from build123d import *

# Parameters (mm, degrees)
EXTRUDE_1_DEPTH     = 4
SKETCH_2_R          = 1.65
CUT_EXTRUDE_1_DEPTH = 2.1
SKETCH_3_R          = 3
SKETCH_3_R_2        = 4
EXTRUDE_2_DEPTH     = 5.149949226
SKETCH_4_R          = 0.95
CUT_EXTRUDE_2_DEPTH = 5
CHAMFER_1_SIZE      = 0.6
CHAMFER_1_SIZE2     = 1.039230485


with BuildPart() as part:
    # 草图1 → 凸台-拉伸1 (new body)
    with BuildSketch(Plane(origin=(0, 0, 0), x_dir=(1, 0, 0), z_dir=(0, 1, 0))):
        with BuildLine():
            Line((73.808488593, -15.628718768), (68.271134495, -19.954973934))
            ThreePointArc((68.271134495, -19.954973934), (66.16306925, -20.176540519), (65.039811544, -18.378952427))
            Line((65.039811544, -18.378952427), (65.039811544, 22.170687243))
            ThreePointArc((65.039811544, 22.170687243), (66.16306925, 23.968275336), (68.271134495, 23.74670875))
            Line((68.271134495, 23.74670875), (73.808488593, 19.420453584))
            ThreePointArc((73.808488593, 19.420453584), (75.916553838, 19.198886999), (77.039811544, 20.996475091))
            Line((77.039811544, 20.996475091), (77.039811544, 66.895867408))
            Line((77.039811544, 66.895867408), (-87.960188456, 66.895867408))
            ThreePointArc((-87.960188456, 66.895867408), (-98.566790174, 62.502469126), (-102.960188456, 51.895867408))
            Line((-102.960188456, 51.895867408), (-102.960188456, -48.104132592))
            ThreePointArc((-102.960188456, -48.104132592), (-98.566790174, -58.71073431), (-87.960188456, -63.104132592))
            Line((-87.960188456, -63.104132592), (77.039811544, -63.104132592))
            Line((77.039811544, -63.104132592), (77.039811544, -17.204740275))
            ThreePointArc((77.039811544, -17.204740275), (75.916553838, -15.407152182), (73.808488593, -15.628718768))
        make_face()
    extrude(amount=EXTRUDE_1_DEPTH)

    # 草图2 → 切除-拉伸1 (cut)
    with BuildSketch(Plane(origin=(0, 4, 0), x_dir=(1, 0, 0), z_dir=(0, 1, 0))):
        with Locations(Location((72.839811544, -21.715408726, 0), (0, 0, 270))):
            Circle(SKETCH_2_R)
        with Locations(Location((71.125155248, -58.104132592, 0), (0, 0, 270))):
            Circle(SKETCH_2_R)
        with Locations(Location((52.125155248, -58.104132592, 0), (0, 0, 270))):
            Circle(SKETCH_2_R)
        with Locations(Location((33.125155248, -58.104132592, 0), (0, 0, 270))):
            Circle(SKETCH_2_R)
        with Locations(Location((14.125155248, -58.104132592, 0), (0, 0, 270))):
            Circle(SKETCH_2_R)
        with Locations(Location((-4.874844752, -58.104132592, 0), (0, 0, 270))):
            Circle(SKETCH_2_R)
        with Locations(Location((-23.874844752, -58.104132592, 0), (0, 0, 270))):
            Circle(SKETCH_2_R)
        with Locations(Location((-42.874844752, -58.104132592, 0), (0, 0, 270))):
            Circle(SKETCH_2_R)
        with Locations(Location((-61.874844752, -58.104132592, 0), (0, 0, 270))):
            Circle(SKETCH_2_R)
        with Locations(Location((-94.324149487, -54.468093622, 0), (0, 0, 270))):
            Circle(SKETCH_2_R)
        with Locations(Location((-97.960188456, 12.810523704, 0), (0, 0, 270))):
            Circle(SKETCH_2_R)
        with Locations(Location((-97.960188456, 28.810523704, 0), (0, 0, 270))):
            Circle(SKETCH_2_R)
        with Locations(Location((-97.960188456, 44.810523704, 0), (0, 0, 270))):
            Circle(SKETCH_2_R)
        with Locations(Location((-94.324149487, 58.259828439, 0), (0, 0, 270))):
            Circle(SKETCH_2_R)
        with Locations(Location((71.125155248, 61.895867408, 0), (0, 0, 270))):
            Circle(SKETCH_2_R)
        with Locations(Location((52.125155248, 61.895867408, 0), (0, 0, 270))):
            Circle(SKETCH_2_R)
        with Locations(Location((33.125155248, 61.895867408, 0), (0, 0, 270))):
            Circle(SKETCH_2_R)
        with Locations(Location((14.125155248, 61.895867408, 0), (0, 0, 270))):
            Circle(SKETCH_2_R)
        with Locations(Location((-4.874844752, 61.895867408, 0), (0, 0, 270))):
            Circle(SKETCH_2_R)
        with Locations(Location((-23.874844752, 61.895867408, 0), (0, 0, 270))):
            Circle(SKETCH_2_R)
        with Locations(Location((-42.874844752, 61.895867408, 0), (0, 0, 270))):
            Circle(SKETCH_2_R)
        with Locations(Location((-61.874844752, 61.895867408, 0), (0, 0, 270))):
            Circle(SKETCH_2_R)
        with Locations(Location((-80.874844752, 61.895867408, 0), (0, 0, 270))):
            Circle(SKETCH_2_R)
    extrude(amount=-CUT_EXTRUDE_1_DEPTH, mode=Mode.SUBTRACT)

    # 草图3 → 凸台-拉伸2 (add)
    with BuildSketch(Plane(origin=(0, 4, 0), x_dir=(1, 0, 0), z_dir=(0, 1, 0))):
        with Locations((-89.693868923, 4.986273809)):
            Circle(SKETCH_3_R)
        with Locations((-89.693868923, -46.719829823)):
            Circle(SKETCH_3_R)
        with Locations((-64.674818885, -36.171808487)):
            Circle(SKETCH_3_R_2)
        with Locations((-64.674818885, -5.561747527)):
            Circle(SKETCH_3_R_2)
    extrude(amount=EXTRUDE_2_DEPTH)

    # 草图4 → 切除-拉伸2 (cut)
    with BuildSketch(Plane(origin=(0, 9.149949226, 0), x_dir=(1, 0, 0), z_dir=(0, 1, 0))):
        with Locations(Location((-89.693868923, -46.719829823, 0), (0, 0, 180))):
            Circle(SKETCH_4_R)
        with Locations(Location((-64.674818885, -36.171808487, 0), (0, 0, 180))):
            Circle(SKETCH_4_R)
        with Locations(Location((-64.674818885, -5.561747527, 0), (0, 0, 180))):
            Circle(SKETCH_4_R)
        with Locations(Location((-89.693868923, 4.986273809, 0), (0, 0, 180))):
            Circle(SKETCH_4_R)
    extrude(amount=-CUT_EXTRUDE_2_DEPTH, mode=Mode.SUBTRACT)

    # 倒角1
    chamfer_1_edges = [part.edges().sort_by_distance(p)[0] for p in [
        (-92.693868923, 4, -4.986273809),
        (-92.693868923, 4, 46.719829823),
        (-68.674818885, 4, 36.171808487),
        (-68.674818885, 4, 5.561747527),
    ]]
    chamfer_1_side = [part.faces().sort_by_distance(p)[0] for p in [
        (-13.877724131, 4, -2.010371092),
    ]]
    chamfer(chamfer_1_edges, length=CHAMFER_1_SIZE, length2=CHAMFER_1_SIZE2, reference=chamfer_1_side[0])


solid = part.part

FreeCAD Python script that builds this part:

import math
import FreeCAD as App
import Part
import Sketcher
Q = App.Units.Quantity


def edges_at(feature, points):
    """Names of the edges that pass closest to the given points."""
    edges = feature.Shape.Edges
    near = lambda p: min(range(len(edges)), key=lambda i: edges[i].distToShape(Part.Vertex(*p))[0])
    return sorted({f"Edge{near(p) + 1}" for p in points})

doc = App.newDocument("Part")
body = doc.addObject("PartDesign::Body", "Body")

# Sketch on XZ plane
sketch1 = body.newObject("Sketcher::SketchObject", "Sketch")
sketch1.AttachmentSupport = (doc.getObject("XZ_Plane"), [""])
sketch1.MapMode = "FlatFace"
sketch1.addGeometry(Part.LineSegment(App.Vector(73.8, 15.6, 0), App.Vector(68.3, 20, 0)), False)
sketch1.addGeometry(Part.ArcOfCircle(Part.Circle(App.Vector(67, 18.4, 0), App.Vector(0, 0, 1), 2), math.radians(52), math.radians(180)), False)
sketch1.addGeometry(Part.LineSegment(App.Vector(65, 18.4, 0), App.Vector(65, -22.2, 0)), False)
sketch1.addGeometry(Part.ArcOfCircle(Part.Circle(App.Vector(67, -22.2, 0), App.Vector(0, 0, 1), 2), math.radians(180), math.radians(308)), False)
sketch1.addGeometry(Part.LineSegment(App.Vector(68.3, -23.7, 0), App.Vector(73.8, -19.4, 0)), False)
sketch1.addGeometry(Part.ArcOfCircle(Part.Circle(App.Vector(75, -21, 0), App.Vector(0, 0, 1), 2), math.radians(0), math.radians(128)), False)
sketch1.addGeometry(Part.LineSegment(App.Vector(77, -21, 0), App.Vector(77, -66.9, 0)), False)
sketch1.addGeometry(Part.LineSegment(App.Vector(77, -66.9, 0), App.Vector(-88, -66.9, 0)), False)
sketch1.addGeometry(Part.ArcOfCircle(Part.Circle(App.Vector(-88, -51.9, 0), App.Vector(0, 0, 1), 15), math.radians(180), math.radians(270)), False)
sketch1.addGeometry(Part.LineSegment(App.Vector(-103, -51.9, 0), App.Vector(-103, 48.1, 0)), False)
sketch1.addGeometry(Part.ArcOfCircle(Part.Circle(App.Vector(-88, 48.1, 0), App.Vector(0, 0, 1), 15), math.radians(90), math.radians(180)), False)
sketch1.addGeometry(Part.LineSegment(App.Vector(-88, 63.1, 0), App.Vector(77, 63.1, 0)), False)
sketch1.addGeometry(Part.LineSegment(App.Vector(77, 63.1, 0), App.Vector(77, 17.2, 0)), False)
sketch1.addGeometry(Part.ArcOfCircle(Part.Circle(App.Vector(75, 17.2, 0), App.Vector(0, 0, 1), 2), math.radians(-128), math.radians(0)), False)
sketch1.addConstraint(Sketcher.Constraint("Tangent", 0, 2, 1, 1))
sketch1.addConstraint(Sketcher.Constraint("Tangent", 1, 2, 2, 1))
sketch1.addConstraint(Sketcher.Constraint("Tangent", 2, 2, 3, 1))
sketch1.addConstraint(Sketcher.Constraint("Tangent", 3, 2, 4, 1))
sketch1.addConstraint(Sketcher.Constraint("Tangent", 4, 2, 5, 2))
sketch1.addConstraint(Sketcher.Constraint("Tangent", 5, 1, 6, 1))
sketch1.addConstraint(Sketcher.Constraint("Coincident", 6, 2, 7, 1))
sketch1.addConstraint(Sketcher.Constraint("Tangent", 7, 2, 8, 2))
sketch1.addConstraint(Sketcher.Constraint("Tangent", 8, 1, 9, 1))
sketch1.addConstraint(Sketcher.Constraint("Tangent", 9, 2, 10, 2))
sketch1.addConstraint(Sketcher.Constraint("Tangent", 10, 1, 11, 1))
sketch1.addConstraint(Sketcher.Constraint("Coincident", 11, 2, 12, 1))
sketch1.addConstraint(Sketcher.Constraint("Tangent", 12, 2, 13, 2))
sketch1.addConstraint(Sketcher.Constraint("Tangent", 13, 1, 0, 1))
sketch1.addConstraint(Sketcher.Constraint("Vertical", 2))
sketch1.addConstraint(Sketcher.Constraint("Vertical", 6))
sketch1.addConstraint(Sketcher.Constraint("Horizontal", 7))
sketch1.addConstraint(Sketcher.Constraint("Vertical", 9))
sketch1.addConstraint(Sketcher.Constraint("Horizontal", 11))
sketch1.addConstraint(Sketcher.Constraint("Vertical", 12))
sketch1.addConstraint(Sketcher.Constraint("Equal", 1, 3))
sketch1.addConstraint(Sketcher.Constraint("Equal", 3, 5))
sketch1.addConstraint(Sketcher.Constraint("Equal", 8, 10))
sketch1.addConstraint(Sketcher.Constraint("Equal", 5, 13))
sketch1.addConstraint(Sketcher.Constraint("Vertical", 5, 3, 13, 3))
sketch1.addConstraint(Sketcher.Constraint("Vertical", 0, 2, 3, 2))
sketch1.addConstraint(Sketcher.Constraint("Equal", 6, 12))
sketch1.addConstraint(Sketcher.Constraint("Radius", 1, Q("2 mm")))
sketch1.addConstraint(Sketcher.Constraint("Radius", 8, Q("15 mm")))
sketch1.addConstraint(Sketcher.Constraint("DistanceX", 7, 2, 7, 1, Q("165 mm")))
sketch1.addConstraint(Sketcher.Constraint("DistanceY", 9, 1, 9, 2, Q("100 mm")))
sketch1.addConstraint(Sketcher.Constraint("Angle", 0, Q("142 deg")))
sketch1.addConstraint(Sketcher.Constraint("DistanceX", 3, 3, 5, 3, Q("8 mm")))
sketch1.addConstraint(Sketcher.Constraint("DistanceY", 2, 2, 2, 1, Q("40.54964 mm")))
sketch1.addConstraint(Sketcher.Constraint("DistanceX", -1, 1, 1, 3, Q("67.039812 mm")))
sketch1.addConstraint(Sketcher.Constraint("DistanceY", -1, 1, 13, 3, Q("17.20474 mm")))
pad1 = body.newObject("PartDesign::Pad", "Pad")
pad1.Profile = sketch1
pad1.Length = 4
pad1.Reversed = True

# Sketch on XZ plane
sketch2 = body.newObject("Sketcher::SketchObject", "Sketch001")
sketch2.AttachmentSupport = (doc.getObject("XZ_Plane"), [""])
sketch2.MapMode = "FlatFace"
sketch2.AttachmentOffset = App.Placement(App.Vector(0, 0, -4), App.Rotation())
sketch2.addGeometry(Part.Circle(App.Vector(72.8, 21.7, 0), App.Vector(0, 0, 1), 1.6), False)
sketch2.addGeometry(Part.Circle(App.Vector(71.1, 58.1, 0), App.Vector(0, 0, 1), 1.6), False)
sketch2.addGeometry(Part.Circle(App.Vector(52.1, 58.1, 0), App.Vector(0, 0, 1), 1.6), False)
sketch2.addGeometry(Part.Circle(App.Vector(33.1, 58.1, 0), App.Vector(0, 0, 1), 1.6), False)
sketch2.addGeometry(Part.Circle(App.Vector(14.1, 58.1, 0), App.Vector(0, 0, 1), 1.6), False)
sketch2.addGeometry(Part.Circle(App.Vector(-4.9, 58.1, 0), App.Vector(0, 0, 1), 1.6), False)
sketch2.addGeometry(Part.Circle(App.Vector(-23.9, 58.1, 0), App.Vector(0, 0, 1), 1.6), False)
sketch2.addGeometry(Part.Circle(App.Vector(-42.9, 58.1, 0), App.Vector(0, 0, 1), 1.6), False)
sketch2.addGeometry(Part.Circle(App.Vector(-61.9, 58.1, 0), App.Vector(0, 0, 1), 1.6), False)
sketch2.addGeometry(Part.Circle(App.Vector(-94.3, 54.5, 0), App.Vector(0, 0, 1), 1.6), False)
sketch2.addGeometry(Part.Circle(App.Vector(-98, -12.8, 0), App.Vector(0, 0, 1), 1.6), False)
sketch2.addGeometry(Part.Circle(App.Vector(-98, -28.8, 0), App.Vector(0, 0, 1), 1.6), False)
sketch2.addGeometry(Part.Circle(App.Vector(-98, -44.8, 0), App.Vector(0, 0, 1), 1.6), False)
sketch2.addGeometry(Part.Circle(App.Vector(-94.3, -58.3, 0), App.Vector(0, 0, 1), 1.6), False)
sketch2.addGeometry(Part.Circle(App.Vector(71.1, -61.9, 0), App.Vector(0, 0, 1), 1.6), False)
sketch2.addGeometry(Part.Circle(App.Vector(52.1, -61.9, 0), App.Vector(0, 0, 1), 1.6), False)
sketch2.addGeometry(Part.Circle(App.Vector(33.1, -61.9, 0), App.Vector(0, 0, 1), 1.6), False)
sketch2.addGeometry(Part.Circle(App.Vector(14.1, -61.9, 0), App.Vector(0, 0, 1), 1.6), False)
sketch2.addGeometry(Part.Circle(App.Vector(-4.9, -61.9, 0), App.Vector(0, 0, 1), 1.6), False)
sketch2.addGeometry(Part.Circle(App.Vector(-23.9, -61.9, 0), App.Vector(0, 0, 1), 1.6), False)
sketch2.addGeometry(Part.Circle(App.Vector(-42.9, -61.9, 0), App.Vector(0, 0, 1), 1.6), False)
sketch2.addGeometry(Part.Circle(App.Vector(-61.9, -61.9, 0), App.Vector(0, 0, 1), 1.6), False)
sketch2.addGeometry(Part.Circle(App.Vector(-80.9, -61.9, 0), App.Vector(0, 0, 1), 1.6), False)
sketch2.addConstraint(Sketcher.Constraint("Equal", 0, 1))
sketch2.addConstraint(Sketcher.Constraint("Equal", 1, 2))
sketch2.addConstraint(Sketcher.Constraint("Equal", 2, 3))
sketch2.addConstraint(Sketcher.Constraint("Equal", 3, 4))
sketch2.addConstraint(Sketcher.Constraint("Equal", 4, 5))
sketch2.addConstraint(Sketcher.Constraint("Equal", 5, 6))
sketch2.addConstraint(Sketcher.Constraint("Equal", 6, 7))
sketch2.addConstraint(Sketcher.Constraint("Equal", 7, 8))
sketch2.addConstraint(Sketcher.Constraint("Equal", 8, 9))
sketch2.addConstraint(Sketcher.Constraint("Equal", 9, 10))
sketch2.addConstraint(Sketcher.Constraint("Equal", 10, 11))
sketch2.addConstraint(Sketcher.Constraint("Equal", 11, 12))
sketch2.addConstraint(Sketcher.Constraint("Equal", 12, 13))
sketch2.addConstraint(Sketcher.Constraint("Equal", 13, 14))
sketch2.addConstraint(Sketcher.Constraint("Equal", 14, 15))
sketch2.addConstraint(Sketcher.Constraint("Equal", 15, 16))
sketch2.addConstraint(Sketcher.Constraint("Equal", 16, 17))
sketch2.addConstraint(Sketcher.Constraint("Equal", 17, 18))
sketch2.addConstraint(Sketcher.Constraint("Equal", 18, 19))
sketch2.addConstraint(Sketcher.Constraint("Equal", 19, 20))
sketch2.addConstraint(Sketcher.Constraint("Equal", 20, 21))
sketch2.addConstraint(Sketcher.Constraint("Equal", 21, 22))
sketch2.addConstraint(Sketcher.Constraint("Horizontal", 1, 3, 2, 3))
sketch2.addConstraint(Sketcher.Constraint("Horizontal", 2, 3, 3, 3))
sketch2.addConstraint(Sketcher.Constraint("Horizontal", 3, 3, 4, 3))
sketch2.addConstraint(Sketcher.Constraint("Horizontal", 4, 3, 5, 3))
sketch2.addConstraint(Sketcher.Constraint("Horizontal", 5, 3, 6, 3))
sketch2.addConstraint(Sketcher.Constraint("Horizontal", 6, 3, 7, 3))
sketch2.addConstraint(Sketcher.Constraint("Horizontal", 7, 3, 8, 3))
sketch2.addConstraint(Sketcher.Constraint("Horizontal", 14, 3, 15, 3))
sketch2.addConstraint(Sketcher.Constraint("Horizontal", 15, 3, 16, 3))
sketch2.addConstraint(Sketcher.Constraint("Horizontal", 16, 3, 17, 3))
sketch2.addConstraint(Sketcher.Constraint("Horizontal", 17, 3, 18, 3))
sketch2.addConstraint(Sketcher.Constraint("Horizontal", 18, 3, 19, 3))
sketch2.addConstraint(Sketcher.Constraint("Horizontal", 19, 3, 20, 3))
sketch2.addConstraint(Sketcher.Constraint("Horizontal", 20, 3, 21, 3))
sketch2.addConstraint(Sketcher.Constraint("Horizontal", 21, 3, 22, 3))
sketch2.addConstraint(Sketcher.Constraint("Vertical", 10, 3, 11, 3))
sketch2.addConstraint(Sketcher.Constraint("Vertical", 11, 3, 12, 3))
sketch2.addConstraint(Sketcher.Constraint("Vertical", 9, 3, 13, 3))
sketch2.addConstraint(Sketcher.Constraint("Vertical", 1, 3, 14, 3))
sketch2.addConstraint(Sketcher.Constraint("Vertical", 2, 3, 15, 3))
sketch2.addConstraint(Sketcher.Constraint("Vertical", 3, 3, 16, 3))
sketch2.addConstraint(Sketcher.Constraint("Vertical", 4, 3, 17, 3))
sketch2.addConstraint(Sketcher.Constraint("Vertical", 5, 3, 18, 3))
sketch2.addConstraint(Sketcher.Constraint("Vertical", 6, 3, 19, 3))
sketch2.addConstraint(Sketcher.Constraint("Vertical", 7, 3, 20, 3))
sketch2.addConstraint(Sketcher.Constraint("Vertical", 8, 3, 21, 3))
sketch2.addConstraint(Sketcher.Constraint("Diameter", 0, Q("3.3 mm")))
sketch2.addConstraint(Sketcher.Constraint("DistanceX", 2, 3, 1, 3, Q("19 mm")))
sketch2.addConstraint(Sketcher.Constraint("DistanceX", 3, 3, 2, 3, Q("19 mm")))
sketch2.addConstraint(Sketcher.Constraint("DistanceX", 4, 3, 3, 3, Q("19 mm")))
sketch2.addConstraint(Sketcher.Constraint("DistanceX", 5, 3, 4, 3, Q("19 mm")))
sketch2.addConstraint(Sketcher.Constraint("DistanceX", 6, 3, 5, 3, Q("19 mm")))
sketch2.addConstraint(Sketcher.Constraint("DistanceX", 7, 3, 6, 3, Q("19 mm")))
sketch2.addConstraint(Sketcher.Constraint("DistanceX", 8, 3, 7, 3, Q("19 mm")))
sketch2.addConstraint(Sketcher.Constraint("DistanceY", 11, 3, 10, 3, Q("16 mm")))
sketch2.addConstraint(Sketcher.Constraint("DistanceY", 12, 3, 11, 3, Q("16 mm")))
sketch2.addConstraint(Sketcher.Constraint("DistanceY", 14, 3, 1, 3, Q("120 mm")))
sketch2.addConstraint(Sketcher.Constraint("DistanceX", 22, 3, 21, 3, Q("19 mm")))
sketch2.addConstraint(Sketcher.Constraint("DistanceX", -1, 1, 0, 3, Q("72.839812 mm")))
sketch2.addConstraint(Sketcher.Constraint("DistanceY", -1, 1, 0, 3, Q("21.715409 mm")))
sketch2.addConstraint(Sketcher.Constraint("DistanceX", 9, 3, -1, 1, Q("94.324149 mm")))
sketch2.addConstraint(Sketcher.Constraint("DistanceX", 10, 3, -1, 1, Q("97.960188 mm")))
sketch2.addConstraint(Sketcher.Constraint("DistanceY", 13, 3, -1, 1, Q("58.259828 mm")))
sketch2.addConstraint(Sketcher.Constraint("DistanceY", 9, 3, 8, 3, Q("3.636039 mm")))
sketch2.addConstraint(Sketcher.Constraint("DistanceY", 13, 3, 8, 3, Q("116.363961 mm")))
sketch2.addConstraint(Sketcher.Constraint("DistanceX", -1, 1, 1, 3, Q("71.125155 mm")))
sketch2.addConstraint(Sketcher.Constraint("DistanceY", 10, 3, -1, 1, Q("12.810524 mm")))
pocket1 = body.newObject("PartDesign::Pocket", "Pocket")
pocket1.Profile = sketch2
pocket1.Length = 2.1
pocket1.Reversed = True

# Sketch on XZ plane
sketch3 = body.newObject("Sketcher::SketchObject", "Sketch002")
sketch3.AttachmentSupport = (doc.getObject("XZ_Plane"), [""])
sketch3.MapMode = "FlatFace"
sketch3.AttachmentOffset = App.Placement(App.Vector(0, 0, -4), App.Rotation())
sketch3.addGeometry(Part.Circle(App.Vector(-89.7, -5, 0), App.Vector(0, 0, 1), 3), False)
sketch3.addGeometry(Part.Circle(App.Vector(-89.7, 46.7, 0), App.Vector(0, 0, 1), 3), False)
sketch3.addGeometry(Part.Circle(App.Vector(-64.7, 36.2, 0), App.Vector(0, 0, 1), 4), False)
sketch3.addGeometry(Part.Circle(App.Vector(-64.7, 5.6, 0), App.Vector(0, 0, 1), 4), False)
sketch3.addConstraint(Sketcher.Constraint("Equal", 0, 1))
sketch3.addConstraint(Sketcher.Constraint("Equal", 2, 3))
sketch3.addConstraint(Sketcher.Constraint("Vertical", 0, 3, 1, 3))
sketch3.addConstraint(Sketcher.Constraint("Vertical", 2, 3, 3, 3))
sketch3.addConstraint(Sketcher.Constraint("Diameter", 0, Q("6 mm")))
sketch3.addConstraint(Sketcher.Constraint("Diameter", 2, Q("8 mm")))
sketch3.addConstraint(Sketcher.Constraint("DistanceX", 0, 3, -1, 1, Q("89.693869 mm")))
sketch3.addConstraint(Sketcher.Constraint("DistanceY", -1, 1, 1, 3, Q("46.71983 mm")))
sketch3.addConstraint(Sketcher.Constraint("DistanceX", 2, 3, -1, 1, Q("64.674819 mm")))
sketch3.addConstraint(Sketcher.Constraint("DistanceY", -1, 1, 2, 3, Q("36.171808 mm")))
sketch3.addConstraint(Sketcher.Constraint("DistanceY", 0, 3, 3, 3, Q("10.548021 mm")))
sketch3.addConstraint(Sketcher.Constraint("DistanceY", 3, 3, 2, 3, Q("30.610061 mm")))
pad2 = body.newObject("PartDesign::Pad", "Pad001")
pad2.Profile = sketch3
pad2.Length = 5.149949
pad2.Reversed = True

# Sketch on XZ plane
sketch4 = body.newObject("Sketcher::SketchObject", "Sketch003")
sketch4.AttachmentSupport = (doc.getObject("XZ_Plane"), [""])
sketch4.MapMode = "FlatFace"
sketch4.AttachmentOffset = App.Placement(App.Vector(0, 0, -9.149949), App.Rotation())
sketch4.addGeometry(Part.Circle(App.Vector(-89.7, 46.7, 0), App.Vector(0, 0, 1), 0.9), False)
sketch4.addGeometry(Part.Circle(App.Vector(-64.7, 36.2, 0), App.Vector(0, 0, 1), 0.9), False)
sketch4.addGeometry(Part.Circle(App.Vector(-64.7, 5.6, 0), App.Vector(0, 0, 1), 0.9), False)
sketch4.addGeometry(Part.Circle(App.Vector(-89.7, -5, 0), App.Vector(0, 0, 1), 0.9), False)
sketch4.addConstraint(Sketcher.Constraint("Equal", 0, 1))
sketch4.addConstraint(Sketcher.Constraint("Equal", 1, 2))
sketch4.addConstraint(Sketcher.Constraint("Equal", 2, 3))
sketch4.addConstraint(Sketcher.Constraint("Vertical", 1, 3, 2, 3))
sketch4.addConstraint(Sketcher.Constraint("Vertical", 0, 3, 3, 3))
sketch4.addConstraint(Sketcher.Constraint("Diameter", 0, Q("1.9 mm")))
sketch4.addConstraint(Sketcher.Constraint("DistanceX", 0, 3, -1, 1, Q("89.693869 mm")))
sketch4.addConstraint(Sketcher.Constraint("DistanceY", -1, 1, 0, 3, Q("46.71983 mm")))
sketch4.addConstraint(Sketcher.Constraint("DistanceX", 1, 3, -1, 1, Q("64.674819 mm")))
sketch4.addConstraint(Sketcher.Constraint("DistanceY", -1, 1, 1, 3, Q("36.171808 mm")))
sketch4.addConstraint(Sketcher.Constraint("DistanceY", 2, 3, 1, 3, Q("30.610061 mm")))
sketch4.addConstraint(Sketcher.Constraint("DistanceY", 3, 3, 2, 3, Q("10.548021 mm")))
pocket2 = body.newObject("PartDesign::Pocket", "Pocket001")
pocket2.Profile = sketch4
pocket2.Length = 5
pocket2.Reversed = True
doc.recompute()

chamfer = body.newObject("PartDesign::Chamfer", "Chamfer")
chamfer.Base = (pocket2, edges_at(pocket2, [
    (-92.694, 4, -4.986),
    (-92.694, 4, 46.72),
    (-68.675, 4, 36.172),
    (-68.675, 4, 5.562),
]))
chamfer.ChamferType = "Two distances"
chamfer.Size = 0.6
chamfer.Size2 = 1.03923

doc.recompute()
